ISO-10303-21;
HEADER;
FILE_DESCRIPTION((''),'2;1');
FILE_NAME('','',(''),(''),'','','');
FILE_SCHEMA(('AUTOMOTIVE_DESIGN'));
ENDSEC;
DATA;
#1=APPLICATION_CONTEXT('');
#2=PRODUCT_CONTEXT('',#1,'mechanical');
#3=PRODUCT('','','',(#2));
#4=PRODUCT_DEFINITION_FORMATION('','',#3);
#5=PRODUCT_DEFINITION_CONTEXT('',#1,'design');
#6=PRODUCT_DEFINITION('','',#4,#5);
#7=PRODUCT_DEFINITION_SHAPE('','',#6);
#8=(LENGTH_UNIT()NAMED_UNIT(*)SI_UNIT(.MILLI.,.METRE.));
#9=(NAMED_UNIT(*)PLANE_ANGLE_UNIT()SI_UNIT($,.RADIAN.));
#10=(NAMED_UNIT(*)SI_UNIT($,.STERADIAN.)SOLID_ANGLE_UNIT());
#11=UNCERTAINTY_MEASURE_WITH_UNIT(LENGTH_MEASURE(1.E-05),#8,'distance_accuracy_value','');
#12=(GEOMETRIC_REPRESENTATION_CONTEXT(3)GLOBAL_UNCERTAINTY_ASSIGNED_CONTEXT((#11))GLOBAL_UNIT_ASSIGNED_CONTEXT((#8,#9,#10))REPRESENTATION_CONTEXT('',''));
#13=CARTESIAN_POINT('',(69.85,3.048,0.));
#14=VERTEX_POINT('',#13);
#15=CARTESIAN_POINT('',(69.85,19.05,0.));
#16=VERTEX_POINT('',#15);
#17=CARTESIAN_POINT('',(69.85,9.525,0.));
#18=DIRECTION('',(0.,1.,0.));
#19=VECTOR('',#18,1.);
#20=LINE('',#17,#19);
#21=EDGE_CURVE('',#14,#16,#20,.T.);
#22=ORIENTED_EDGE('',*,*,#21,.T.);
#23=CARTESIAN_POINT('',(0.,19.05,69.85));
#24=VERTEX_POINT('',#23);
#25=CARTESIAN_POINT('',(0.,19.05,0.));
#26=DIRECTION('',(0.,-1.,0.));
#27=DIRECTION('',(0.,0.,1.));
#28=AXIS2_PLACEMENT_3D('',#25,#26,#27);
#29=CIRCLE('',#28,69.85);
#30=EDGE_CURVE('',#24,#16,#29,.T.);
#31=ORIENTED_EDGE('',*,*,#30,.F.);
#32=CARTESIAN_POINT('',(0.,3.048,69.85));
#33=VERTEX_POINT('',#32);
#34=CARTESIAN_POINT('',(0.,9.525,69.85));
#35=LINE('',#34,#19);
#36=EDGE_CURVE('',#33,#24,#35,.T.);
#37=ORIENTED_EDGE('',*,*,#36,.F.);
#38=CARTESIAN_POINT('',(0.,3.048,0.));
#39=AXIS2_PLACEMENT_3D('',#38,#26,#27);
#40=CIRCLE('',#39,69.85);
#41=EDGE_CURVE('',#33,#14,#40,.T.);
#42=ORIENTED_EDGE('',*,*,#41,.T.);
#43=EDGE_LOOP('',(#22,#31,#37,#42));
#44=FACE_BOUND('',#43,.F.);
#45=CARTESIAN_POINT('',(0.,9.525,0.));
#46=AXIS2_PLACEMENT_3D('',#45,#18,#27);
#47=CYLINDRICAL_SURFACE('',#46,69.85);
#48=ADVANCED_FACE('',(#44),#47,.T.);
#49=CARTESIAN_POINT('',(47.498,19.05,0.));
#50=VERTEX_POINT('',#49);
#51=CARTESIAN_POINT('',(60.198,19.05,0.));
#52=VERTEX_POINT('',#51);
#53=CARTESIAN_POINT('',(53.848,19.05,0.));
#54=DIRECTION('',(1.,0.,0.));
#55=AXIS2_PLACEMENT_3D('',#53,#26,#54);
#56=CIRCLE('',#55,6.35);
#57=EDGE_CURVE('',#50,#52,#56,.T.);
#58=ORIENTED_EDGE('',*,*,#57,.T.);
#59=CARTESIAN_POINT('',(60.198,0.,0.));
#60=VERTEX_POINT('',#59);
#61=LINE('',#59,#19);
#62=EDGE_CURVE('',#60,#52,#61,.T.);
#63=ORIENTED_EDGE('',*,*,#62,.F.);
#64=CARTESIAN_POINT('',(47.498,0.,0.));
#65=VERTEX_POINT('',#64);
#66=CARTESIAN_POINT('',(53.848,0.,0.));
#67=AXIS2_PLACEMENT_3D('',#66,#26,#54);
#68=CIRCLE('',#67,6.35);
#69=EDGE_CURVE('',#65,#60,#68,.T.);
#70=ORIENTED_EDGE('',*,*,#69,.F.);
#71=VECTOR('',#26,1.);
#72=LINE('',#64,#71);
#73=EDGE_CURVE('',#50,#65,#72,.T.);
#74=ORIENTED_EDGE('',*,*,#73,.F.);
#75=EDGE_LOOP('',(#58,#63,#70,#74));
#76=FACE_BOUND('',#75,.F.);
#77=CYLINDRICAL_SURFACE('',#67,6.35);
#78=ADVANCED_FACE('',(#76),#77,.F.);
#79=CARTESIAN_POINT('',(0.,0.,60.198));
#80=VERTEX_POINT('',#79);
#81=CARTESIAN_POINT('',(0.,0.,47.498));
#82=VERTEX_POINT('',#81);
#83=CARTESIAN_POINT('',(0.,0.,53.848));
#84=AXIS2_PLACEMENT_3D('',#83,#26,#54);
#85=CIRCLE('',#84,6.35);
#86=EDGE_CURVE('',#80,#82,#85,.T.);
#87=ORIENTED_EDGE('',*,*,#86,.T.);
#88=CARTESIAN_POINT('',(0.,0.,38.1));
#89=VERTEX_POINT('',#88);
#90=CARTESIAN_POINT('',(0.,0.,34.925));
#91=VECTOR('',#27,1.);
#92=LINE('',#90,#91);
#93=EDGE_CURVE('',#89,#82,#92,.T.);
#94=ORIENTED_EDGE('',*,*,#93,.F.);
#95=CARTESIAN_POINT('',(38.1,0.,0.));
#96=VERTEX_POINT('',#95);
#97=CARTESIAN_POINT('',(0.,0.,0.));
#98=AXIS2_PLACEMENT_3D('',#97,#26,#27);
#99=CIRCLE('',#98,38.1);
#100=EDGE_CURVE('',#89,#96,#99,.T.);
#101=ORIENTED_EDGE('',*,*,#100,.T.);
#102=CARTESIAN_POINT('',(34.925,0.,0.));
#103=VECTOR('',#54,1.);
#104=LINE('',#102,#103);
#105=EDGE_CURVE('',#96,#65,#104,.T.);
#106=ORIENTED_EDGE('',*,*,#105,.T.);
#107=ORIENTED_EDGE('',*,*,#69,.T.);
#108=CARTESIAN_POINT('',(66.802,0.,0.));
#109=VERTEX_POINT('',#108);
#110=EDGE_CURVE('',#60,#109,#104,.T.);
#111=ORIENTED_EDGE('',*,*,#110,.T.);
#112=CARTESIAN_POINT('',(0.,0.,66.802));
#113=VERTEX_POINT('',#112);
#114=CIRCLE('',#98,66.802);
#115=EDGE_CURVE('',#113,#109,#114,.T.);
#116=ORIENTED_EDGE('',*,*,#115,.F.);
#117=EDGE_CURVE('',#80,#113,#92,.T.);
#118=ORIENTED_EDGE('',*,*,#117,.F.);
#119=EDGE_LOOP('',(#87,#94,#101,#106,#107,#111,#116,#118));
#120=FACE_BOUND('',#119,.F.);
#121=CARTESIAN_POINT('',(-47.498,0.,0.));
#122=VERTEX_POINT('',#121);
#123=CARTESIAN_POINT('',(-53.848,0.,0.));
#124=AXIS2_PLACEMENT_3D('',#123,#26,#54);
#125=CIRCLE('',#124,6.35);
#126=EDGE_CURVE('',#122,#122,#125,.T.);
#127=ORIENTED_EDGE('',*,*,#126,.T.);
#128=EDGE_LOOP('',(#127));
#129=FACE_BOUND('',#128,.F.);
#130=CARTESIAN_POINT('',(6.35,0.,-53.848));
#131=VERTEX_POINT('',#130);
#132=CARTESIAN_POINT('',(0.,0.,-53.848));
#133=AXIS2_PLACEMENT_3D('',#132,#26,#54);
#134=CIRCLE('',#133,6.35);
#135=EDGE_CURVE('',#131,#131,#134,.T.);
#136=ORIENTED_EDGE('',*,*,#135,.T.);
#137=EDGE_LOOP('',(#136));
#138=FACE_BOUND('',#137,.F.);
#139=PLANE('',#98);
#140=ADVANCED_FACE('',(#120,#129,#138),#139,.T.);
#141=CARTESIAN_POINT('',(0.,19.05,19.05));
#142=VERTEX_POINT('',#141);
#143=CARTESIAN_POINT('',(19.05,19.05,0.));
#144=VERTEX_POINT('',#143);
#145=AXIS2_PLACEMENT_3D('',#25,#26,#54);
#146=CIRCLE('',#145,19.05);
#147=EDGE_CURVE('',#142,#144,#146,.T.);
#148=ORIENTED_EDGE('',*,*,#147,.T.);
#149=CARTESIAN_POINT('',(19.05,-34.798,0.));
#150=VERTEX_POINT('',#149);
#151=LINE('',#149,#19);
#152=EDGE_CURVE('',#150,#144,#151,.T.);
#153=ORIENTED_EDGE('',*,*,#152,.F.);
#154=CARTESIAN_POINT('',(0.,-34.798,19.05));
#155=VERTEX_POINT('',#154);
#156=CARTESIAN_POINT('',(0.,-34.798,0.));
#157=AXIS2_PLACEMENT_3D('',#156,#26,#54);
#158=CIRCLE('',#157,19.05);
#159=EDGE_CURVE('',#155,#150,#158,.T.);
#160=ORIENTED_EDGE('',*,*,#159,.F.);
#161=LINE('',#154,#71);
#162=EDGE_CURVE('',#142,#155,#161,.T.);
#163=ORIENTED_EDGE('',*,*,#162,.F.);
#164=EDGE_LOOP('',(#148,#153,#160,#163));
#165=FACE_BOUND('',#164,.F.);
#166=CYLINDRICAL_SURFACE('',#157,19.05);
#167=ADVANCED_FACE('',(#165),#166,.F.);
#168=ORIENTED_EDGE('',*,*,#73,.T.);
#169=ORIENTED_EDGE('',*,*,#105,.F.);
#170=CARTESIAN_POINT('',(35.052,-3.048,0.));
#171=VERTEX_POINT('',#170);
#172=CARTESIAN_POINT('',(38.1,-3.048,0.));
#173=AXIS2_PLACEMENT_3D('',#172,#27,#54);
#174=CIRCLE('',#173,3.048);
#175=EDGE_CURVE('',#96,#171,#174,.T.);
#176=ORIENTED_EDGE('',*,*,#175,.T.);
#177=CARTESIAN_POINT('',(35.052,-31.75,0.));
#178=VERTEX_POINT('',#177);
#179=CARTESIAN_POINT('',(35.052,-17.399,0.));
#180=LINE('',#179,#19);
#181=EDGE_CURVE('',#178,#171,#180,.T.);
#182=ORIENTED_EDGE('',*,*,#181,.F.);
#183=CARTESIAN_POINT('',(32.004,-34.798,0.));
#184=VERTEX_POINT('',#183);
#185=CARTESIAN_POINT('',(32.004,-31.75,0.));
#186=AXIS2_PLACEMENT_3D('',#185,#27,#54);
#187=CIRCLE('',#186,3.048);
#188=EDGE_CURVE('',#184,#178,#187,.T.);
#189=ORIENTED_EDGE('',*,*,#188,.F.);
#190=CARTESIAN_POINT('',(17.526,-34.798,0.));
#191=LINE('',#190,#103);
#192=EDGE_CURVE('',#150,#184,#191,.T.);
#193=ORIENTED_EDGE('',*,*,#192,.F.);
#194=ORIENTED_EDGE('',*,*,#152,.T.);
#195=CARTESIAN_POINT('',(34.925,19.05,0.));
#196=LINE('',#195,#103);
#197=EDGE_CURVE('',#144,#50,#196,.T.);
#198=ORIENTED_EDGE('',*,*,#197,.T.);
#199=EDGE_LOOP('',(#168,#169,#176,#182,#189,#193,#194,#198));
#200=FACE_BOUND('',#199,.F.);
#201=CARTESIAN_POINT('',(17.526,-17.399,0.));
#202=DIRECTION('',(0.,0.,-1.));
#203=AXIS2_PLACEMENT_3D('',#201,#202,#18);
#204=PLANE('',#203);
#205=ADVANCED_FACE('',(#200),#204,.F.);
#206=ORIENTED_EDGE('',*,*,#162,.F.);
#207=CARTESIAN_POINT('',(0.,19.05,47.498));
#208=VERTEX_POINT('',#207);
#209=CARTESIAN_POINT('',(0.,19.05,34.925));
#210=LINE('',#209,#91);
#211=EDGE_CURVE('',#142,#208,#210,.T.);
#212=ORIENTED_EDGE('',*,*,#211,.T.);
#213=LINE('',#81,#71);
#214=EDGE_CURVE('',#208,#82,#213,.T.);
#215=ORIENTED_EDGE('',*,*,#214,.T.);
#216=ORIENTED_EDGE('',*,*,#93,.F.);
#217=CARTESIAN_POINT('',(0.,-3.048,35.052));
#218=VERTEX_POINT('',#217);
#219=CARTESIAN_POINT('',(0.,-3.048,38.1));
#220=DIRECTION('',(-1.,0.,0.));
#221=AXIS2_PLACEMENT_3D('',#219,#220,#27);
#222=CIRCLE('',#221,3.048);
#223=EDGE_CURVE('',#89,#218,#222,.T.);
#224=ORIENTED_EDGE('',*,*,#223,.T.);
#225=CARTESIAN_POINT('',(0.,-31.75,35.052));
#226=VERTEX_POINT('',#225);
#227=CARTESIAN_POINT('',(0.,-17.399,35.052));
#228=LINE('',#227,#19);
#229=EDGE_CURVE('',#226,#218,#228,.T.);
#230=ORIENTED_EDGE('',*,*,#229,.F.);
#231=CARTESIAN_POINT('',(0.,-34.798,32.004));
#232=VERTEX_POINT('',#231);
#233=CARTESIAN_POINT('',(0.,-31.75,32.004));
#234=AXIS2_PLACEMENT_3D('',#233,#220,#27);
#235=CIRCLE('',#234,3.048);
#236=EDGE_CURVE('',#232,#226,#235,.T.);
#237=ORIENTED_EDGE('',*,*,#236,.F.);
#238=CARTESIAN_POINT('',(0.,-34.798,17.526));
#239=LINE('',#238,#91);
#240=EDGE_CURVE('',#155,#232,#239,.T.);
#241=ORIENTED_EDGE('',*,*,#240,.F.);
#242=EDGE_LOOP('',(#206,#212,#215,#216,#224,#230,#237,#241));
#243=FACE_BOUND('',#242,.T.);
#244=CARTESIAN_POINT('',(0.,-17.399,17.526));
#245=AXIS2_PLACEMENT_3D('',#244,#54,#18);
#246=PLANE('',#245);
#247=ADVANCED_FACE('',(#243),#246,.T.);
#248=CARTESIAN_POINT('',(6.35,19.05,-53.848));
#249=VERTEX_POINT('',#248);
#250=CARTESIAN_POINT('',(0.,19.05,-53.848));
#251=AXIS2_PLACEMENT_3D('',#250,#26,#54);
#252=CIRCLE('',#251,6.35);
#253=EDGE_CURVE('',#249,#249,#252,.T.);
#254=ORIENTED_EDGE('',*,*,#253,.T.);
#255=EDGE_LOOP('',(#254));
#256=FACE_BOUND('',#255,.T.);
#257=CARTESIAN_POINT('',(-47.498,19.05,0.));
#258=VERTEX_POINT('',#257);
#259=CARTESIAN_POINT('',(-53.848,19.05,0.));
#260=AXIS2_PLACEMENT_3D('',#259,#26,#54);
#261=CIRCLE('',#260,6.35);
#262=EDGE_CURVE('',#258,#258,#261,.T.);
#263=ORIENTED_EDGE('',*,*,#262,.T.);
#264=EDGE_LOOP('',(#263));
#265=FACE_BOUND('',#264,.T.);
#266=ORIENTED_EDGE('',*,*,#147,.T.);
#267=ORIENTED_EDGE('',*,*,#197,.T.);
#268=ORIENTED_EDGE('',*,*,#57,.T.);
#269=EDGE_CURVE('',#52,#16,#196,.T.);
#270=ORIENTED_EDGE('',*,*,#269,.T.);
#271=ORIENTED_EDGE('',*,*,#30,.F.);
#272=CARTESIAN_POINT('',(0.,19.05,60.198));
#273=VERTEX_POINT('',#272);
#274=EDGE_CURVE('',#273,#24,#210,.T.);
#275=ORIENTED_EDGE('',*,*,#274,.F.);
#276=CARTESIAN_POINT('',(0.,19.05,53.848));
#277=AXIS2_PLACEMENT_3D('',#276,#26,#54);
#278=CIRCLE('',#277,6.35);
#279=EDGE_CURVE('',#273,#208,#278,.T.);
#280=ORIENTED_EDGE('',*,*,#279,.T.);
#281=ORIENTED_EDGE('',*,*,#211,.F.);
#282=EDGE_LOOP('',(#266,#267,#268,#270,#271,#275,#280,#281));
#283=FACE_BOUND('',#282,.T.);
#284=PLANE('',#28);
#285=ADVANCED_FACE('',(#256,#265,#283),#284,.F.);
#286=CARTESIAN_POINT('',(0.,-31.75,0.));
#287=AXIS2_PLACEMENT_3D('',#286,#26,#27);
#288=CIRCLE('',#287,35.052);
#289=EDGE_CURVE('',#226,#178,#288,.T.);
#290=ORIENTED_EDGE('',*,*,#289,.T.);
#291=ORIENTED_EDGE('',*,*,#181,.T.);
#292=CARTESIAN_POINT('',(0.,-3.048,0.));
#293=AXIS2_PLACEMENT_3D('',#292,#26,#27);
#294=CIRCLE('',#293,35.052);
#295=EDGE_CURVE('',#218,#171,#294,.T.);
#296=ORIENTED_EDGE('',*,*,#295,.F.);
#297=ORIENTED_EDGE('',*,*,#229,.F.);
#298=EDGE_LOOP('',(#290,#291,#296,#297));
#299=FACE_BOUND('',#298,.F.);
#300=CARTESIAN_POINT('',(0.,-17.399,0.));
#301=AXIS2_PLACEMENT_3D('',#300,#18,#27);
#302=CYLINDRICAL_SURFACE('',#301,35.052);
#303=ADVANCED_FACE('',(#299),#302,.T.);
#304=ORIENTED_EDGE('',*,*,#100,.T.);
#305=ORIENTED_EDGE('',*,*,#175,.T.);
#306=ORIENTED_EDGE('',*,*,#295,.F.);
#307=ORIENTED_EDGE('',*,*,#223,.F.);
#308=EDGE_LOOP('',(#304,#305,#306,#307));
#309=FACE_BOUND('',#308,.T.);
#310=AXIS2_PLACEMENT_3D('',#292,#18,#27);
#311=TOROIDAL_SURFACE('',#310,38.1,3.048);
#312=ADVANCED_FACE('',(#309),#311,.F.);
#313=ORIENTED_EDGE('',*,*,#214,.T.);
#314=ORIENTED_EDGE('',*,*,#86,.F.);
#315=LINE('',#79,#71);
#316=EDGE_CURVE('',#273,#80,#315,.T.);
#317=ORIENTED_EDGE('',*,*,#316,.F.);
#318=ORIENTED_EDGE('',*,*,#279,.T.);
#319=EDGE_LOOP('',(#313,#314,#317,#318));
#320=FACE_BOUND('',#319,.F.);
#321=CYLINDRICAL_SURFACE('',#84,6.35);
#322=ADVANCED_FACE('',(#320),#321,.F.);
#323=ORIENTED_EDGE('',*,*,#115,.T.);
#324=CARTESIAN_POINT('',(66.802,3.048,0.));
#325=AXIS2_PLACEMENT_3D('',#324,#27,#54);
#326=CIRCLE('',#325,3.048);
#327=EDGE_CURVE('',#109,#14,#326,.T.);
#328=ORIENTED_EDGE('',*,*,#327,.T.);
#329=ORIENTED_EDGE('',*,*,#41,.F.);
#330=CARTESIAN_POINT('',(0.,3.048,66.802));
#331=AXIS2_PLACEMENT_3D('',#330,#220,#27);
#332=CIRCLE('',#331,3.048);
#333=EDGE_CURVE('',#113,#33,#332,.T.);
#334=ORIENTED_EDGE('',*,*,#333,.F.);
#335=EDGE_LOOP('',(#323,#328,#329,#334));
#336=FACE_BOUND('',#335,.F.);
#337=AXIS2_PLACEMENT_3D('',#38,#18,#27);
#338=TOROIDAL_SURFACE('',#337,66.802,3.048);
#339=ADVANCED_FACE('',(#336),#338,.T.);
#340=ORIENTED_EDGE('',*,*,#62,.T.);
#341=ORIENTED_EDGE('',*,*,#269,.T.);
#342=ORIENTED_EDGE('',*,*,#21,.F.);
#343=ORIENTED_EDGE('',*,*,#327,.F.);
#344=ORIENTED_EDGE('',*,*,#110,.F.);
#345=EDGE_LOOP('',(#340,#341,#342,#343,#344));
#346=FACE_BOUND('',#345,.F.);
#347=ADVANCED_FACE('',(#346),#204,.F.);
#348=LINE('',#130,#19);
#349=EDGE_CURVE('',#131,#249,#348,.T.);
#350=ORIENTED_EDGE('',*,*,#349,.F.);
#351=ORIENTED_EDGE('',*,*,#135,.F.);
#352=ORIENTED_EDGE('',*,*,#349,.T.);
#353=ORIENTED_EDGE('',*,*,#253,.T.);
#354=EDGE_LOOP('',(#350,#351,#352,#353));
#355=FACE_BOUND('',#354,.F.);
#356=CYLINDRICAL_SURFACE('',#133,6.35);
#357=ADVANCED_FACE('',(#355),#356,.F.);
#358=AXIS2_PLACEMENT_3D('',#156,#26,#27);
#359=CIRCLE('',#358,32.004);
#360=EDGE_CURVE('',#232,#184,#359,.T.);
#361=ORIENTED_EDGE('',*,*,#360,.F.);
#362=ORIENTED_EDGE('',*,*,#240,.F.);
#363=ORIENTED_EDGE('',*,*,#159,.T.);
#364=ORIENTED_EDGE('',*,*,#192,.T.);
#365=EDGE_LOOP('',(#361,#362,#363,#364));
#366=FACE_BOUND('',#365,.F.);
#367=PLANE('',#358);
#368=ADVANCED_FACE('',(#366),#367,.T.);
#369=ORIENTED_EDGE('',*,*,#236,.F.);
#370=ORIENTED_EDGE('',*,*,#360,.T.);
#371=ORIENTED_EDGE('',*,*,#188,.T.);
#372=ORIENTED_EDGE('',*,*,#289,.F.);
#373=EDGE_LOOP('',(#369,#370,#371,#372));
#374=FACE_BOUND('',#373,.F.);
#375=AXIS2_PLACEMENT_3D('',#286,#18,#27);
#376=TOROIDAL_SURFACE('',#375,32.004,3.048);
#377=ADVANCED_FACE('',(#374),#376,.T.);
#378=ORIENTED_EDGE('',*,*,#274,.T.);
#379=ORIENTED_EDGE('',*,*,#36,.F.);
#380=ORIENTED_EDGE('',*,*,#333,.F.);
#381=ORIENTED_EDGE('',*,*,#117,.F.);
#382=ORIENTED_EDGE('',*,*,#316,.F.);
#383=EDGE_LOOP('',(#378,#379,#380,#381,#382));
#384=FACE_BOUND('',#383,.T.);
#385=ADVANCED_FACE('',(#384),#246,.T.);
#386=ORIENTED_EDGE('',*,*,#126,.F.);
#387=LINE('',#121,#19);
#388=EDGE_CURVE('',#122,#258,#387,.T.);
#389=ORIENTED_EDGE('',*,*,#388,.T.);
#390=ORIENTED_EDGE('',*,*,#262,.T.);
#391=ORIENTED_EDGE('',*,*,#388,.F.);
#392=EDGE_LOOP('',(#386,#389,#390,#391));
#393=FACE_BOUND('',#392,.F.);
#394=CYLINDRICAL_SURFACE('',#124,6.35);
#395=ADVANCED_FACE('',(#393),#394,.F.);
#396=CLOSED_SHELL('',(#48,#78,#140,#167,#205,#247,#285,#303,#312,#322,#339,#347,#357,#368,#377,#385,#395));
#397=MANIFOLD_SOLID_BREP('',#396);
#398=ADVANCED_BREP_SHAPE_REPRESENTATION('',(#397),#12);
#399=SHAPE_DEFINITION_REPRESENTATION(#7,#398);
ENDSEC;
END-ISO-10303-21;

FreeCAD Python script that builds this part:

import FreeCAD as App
import Part
import Sketcher
Q = App.Units.Quantity


def edges_at(feature, points):
    """Names of the edges that pass closest to the given points."""
    edges = feature.Shape.Edges
    near = lambda p: min(range(len(edges)), key=lambda i: edges[i].distToShape(Part.Vertex(*p))[0])
    return sorted({f"Edge{near(p) + 1}" for p in points})


def add_polygon(sketch, points):
    """Adds a closed chain of lines whose ends are joined by coincident constraints."""
    first, n = sketch.GeometryCount, len(points)
    for a, b in zip(points, points[1:] + points[:1]):
        sketch.addGeometry(Part.LineSegment(App.Vector(*a, 0), App.Vector(*b, 0)), False)
    for i in range(n):
        sketch.addConstraint(Sketcher.Constraint("Coincident", first + i, 2, first + (i + 1) % n, 1))

doc = App.newDocument("Part")
body = doc.addObject("PartDesign::Body", "Body")

# Sketch on YZ plane
sketch1 = body.newObject("Sketcher::SketchObject", "Sketch")
sketch1.AttachmentSupport = (doc.getObject("YZ_Plane"), [""])
sketch1.MapMode = "FlatFace"
add_polygon(sketch1, [(0, 70), (0, 0), (19, 0), (19, 70)])  # lines 0-3
sketch1.addConstraint([
    Sketcher.Constraint("Vertical", 0),
    Sketcher.Constraint("Horizontal", 1),
    Sketcher.Constraint("Vertical", 2),
    Sketcher.Constraint("Horizontal", 3),
    Sketcher.Constraint("Coincident", 0, 2, -1, 1),
    Sketcher.Constraint("DistanceX", 1, 1, 1, 2, Q("0.75 in")),
    Sketcher.Constraint("DistanceY", 0, 2, 0, 1, Q("2.75 in")),
])
revolution = body.newObject("PartDesign::Revolution", "Revolution")
revolution.Profile = sketch1
revolution.ReferenceAxis = (sketch1, ["H_Axis"])
revolution.Angle = 270
revolution.Reversed = True
doc.recompute()

fillet = body.newObject("PartDesign::Fillet", "Fillet")
fillet.Base = (revolution, edges_at(revolution, [(-49.391, 0, -49.391)]))
fillet.Radius = Q("0.12 in")

# Sketch on YZ plane
sketch2 = body.newObject("Sketcher::SketchObject", "Sketch001")
sketch2.AttachmentSupport = (doc.getObject("YZ_Plane"), [""])
sketch2.MapMode = "FlatFace"
add_polygon(sketch2, [(-35, 35), (-35, 0), (0, 0), (0, 35)])  # lines 0-3
sketch2.addConstraint([
    Sketcher.Constraint("Vertical", 0),
    Sketcher.Constraint("Horizontal", 1),
    Sketcher.Constraint("Vertical", 2),
    Sketcher.Constraint("Horizontal", 3),
    Sketcher.Constraint("Coincident", 1, 2, -1, 1),
    Sketcher.Constraint("DistanceX", 1, 1, 1, 2, Q("1.37 in")),
    Sketcher.Constraint("DistanceY", 0, 2, 0, 1, Q("1.38 in")),
])
revolution2 = body.newObject("PartDesign::Revolution", "Revolution001")
revolution2.Profile = sketch2
revolution2.ReferenceAxis = (sketch2, ["H_Axis"])
revolution2.Angle = 270
revolution2.Reversed = True
doc.recompute()

fillet2 = body.newObject("PartDesign::Fillet", "Fillet001")
fillet2.Base = (revolution2, edges_at(revolution2, [(-24.786, -34.798, -24.786), (-24.786, 0, -24.786)]))
fillet2.Radius = Q("0.12 in")

# Sketch on XZ plane
sketch3 = body.newObject("Sketcher::SketchObject", "Sketch002")
sketch3.AttachmentSupport = (doc.getObject("XZ_Plane"), [""])
sketch3.MapMode = "FlatFace"
sketch3.AttachmentOffset = App.Placement(App.Vector(0, 0, 1.37 * 25.4), App.Rotation())
sketch3.addGeometry(Part.Circle(App.Vector(0, 0, 0), App.Vector(0, 0, 1), 19), False)
sketch3.addConstraint([
    Sketcher.Constraint("Coincident", 0, 3, -1, 1),
    Sketcher.Constraint("Diameter", 0, Q("1.5 in")),
])
pocket1 = body.newObject("PartDesign::Pocket", "Pocket")
pocket1.Profile = sketch3
pocket1.Type = "ThroughAll"

# Sketch on XZ plane
sketch4 = body.newObject("Sketcher::SketchObject", "Sketch003")
sketch4.AttachmentSupport = (doc.getObject("XZ_Plane"), [""])
sketch4.MapMode = "FlatFace"
sketch4.addGeometry([
    Part.Circle(App.Vector(0, 54, 0), App.Vector(0, 0, 1), 6),
    Part.Circle(App.Vector(-54, 0, 0), App.Vector(0, 0, 1), 6),
    Part.Circle(App.Vector(0, -54, 0), App.Vector(0, 0, 1), 6),
    Part.Circle(App.Vector(54, 0, 0), App.Vector(0, 0, 1), 6),
], False)
sketch4.addConstraint([
    Sketcher.Constraint("Equal", 0, 1),
    Sketcher.Constraint("Equal", 1, 2),
    Sketcher.Constraint("Equal", 2, 3),
    Sketcher.Constraint("Symmetric", 0, 3, 2, 3, -1, 1),
    Sketcher.Constraint("Symmetric", 1, 3, 3, 3, -1, 1),
    Sketcher.Constraint("PointOnObject", 0, 3, -2),
    Sketcher.Constraint("PointOnObject", 1, 3, -1),
    Sketcher.Constraint("Diameter", 0, Q("0.5 in")),
    Sketcher.Constraint("DistanceY", -1, 1, 0, 3, Q("2.12 in")),
    Sketcher.Constraint("DistanceX", 1, 3, -1, 1, Q("2.12 in")),
])
pocket2 = body.newObject("PartDesign::Pocket", "Pocket001")
pocket2.Profile = sketch4
pocket2.Type = "ThroughAll"

doc.recompute()
